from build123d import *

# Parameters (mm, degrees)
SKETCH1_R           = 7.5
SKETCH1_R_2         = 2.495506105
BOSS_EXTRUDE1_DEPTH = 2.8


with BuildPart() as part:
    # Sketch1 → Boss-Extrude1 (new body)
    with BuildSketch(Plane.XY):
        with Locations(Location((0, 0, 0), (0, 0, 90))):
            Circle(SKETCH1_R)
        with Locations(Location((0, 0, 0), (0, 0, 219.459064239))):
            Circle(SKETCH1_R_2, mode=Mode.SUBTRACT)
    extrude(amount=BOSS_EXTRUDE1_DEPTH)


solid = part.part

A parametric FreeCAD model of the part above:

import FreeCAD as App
import Part
import Sketcher
Q = App.Units.Quantity

doc = App.newDocument("Part")
body = doc.addObject("PartDesign::Body", "Body")

# Sketch on XY plane
sketch1 = doc.addObject("Sketcher::SketchObject", "Sketch")
body.addObject(sketch1)
sketch1.AttachmentSupport = (doc.XY_Plane, [""])
sketch1.MapMode = "FlatFace"
sketch1.addGeometry(Part.Circle(App.Vector(0, 0, 0), App.Vector(0, 0, 1), 7.5), False)
sketch1.addGeometry(Part.Circle(App.Vector(0, 0, 0), App.Vector(0, 0, 1), 2.5), False)
sketch1.addConstraint(Sketcher.Constraint("Coincident", 0, 3, -1, 1))
sketch1.addConstraint(Sketcher.Constraint("Coincident", 1, 3, -1, 1))
sketch1.addConstraint(Sketcher.Constraint("Diameter", 0, Q("15 mm")))
sketch1.addConstraint(Sketcher.Constraint("Diameter", 1, Q("4.991012 mm")))
pad1 = doc.addObject("PartDesign::Pad", "Pad")
body.addObject(pad1)
pad1.Profile = sketch1
pad1.Length = 2.8

doc.recompute()
